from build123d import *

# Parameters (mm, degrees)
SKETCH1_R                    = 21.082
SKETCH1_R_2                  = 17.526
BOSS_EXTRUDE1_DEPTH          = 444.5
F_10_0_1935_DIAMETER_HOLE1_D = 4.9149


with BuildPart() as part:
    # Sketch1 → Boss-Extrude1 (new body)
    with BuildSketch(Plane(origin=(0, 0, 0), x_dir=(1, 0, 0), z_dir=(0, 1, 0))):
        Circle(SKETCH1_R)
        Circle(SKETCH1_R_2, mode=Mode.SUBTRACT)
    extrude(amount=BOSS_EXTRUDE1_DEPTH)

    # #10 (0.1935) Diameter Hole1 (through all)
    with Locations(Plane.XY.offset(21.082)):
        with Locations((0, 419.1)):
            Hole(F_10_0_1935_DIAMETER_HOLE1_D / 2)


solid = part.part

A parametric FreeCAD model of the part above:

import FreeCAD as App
import Part
import Sketcher

V = App.Vector
Q = App.Units.Quantity

doc = App.newDocument("Part")
body = doc.addObject("PartDesign::Body", "Body")

# Sketch on XZ plane
sketch1 = body.newObject("Sketcher::SketchObject", "Sketch")
sketch1.AttachmentSupport = (doc.getObject("XZ_Plane"), [""])
sketch1.MapMode = "FlatFace"
sketch1.addGeometry(Part.Circle(V(0, 0, 0), V(0, 0, 1), 21), False)
sketch1.addGeometry(Part.Circle(V(0, 0, 0), V(0, 0, 1), 18), False)
sketch1.addConstraint(Sketcher.Constraint("Coincident", 0, 3, -1, 1))
sketch1.addConstraint(Sketcher.Constraint("Coincident", 1, 3, -1, 1))
sketch1.addConstraint(Sketcher.Constraint("Diameter", 0, Q("1.66 in")))
sketch1.addConstraint(Sketcher.Constraint("Diameter", 1, Q("1.38 in")))
pad1 = body.newObject("PartDesign::Pad", "Pad")
pad1.Profile = sketch1
pad1.Length = Q("17.5 in")
pad1.Reversed = True

# Sketch on XY plane
sketch2 = body.newObject("Sketcher::SketchObject", "Sketch001")
sketch2.AttachmentSupport = (doc.getObject("XY_Plane"), [""])
sketch2.MapMode = "FlatFace"
sketch2.AttachmentOffset = App.Placement(V(0, 0, 0.83 * 25.4), App.Rotation())
sketch2.addGeometry(Part.Circle(V(0, 419.1, 0), V(0, 0, 1), 2.5), False)
sketch2.addConstraint(Sketcher.Constraint("PointOnObject", 0, 3, -2))
sketch2.addConstraint(Sketcher.Constraint("Diameter", 0, Q("0.1935 in")))
sketch2.addConstraint(Sketcher.Constraint("DistanceY", -1, 1, 0, 3, Q("16.5 in")))
doc.recompute()
hole = body.newObject("PartDesign::Hole", "Hole")
hole.Profile = sketch2
hole.ThreadType = "None"
hole.Diameter = Q("0.1935 in")
hole.DepthType = "ThroughAll"

doc.recompute()
